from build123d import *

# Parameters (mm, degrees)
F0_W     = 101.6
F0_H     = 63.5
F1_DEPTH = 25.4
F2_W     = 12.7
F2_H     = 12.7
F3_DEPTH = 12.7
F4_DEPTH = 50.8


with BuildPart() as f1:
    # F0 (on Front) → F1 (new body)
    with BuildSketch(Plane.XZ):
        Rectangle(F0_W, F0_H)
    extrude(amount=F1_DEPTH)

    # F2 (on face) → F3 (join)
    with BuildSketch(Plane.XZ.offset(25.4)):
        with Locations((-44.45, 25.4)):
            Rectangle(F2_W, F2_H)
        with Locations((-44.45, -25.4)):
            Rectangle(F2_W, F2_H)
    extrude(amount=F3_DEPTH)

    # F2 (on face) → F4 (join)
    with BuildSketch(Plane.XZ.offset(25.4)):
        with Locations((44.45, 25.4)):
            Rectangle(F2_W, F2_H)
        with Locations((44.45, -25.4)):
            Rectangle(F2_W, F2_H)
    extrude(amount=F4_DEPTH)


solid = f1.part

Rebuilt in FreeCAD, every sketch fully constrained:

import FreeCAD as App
import Part
import Sketcher

V = App.Vector
Q = App.Units.Quantity

doc = App.newDocument("Part")
params = doc.addObject("Spreadsheet::Sheet", "Params")
for row, (alias, value) in enumerate([
    ("sketch1_width", "4 in"),
    ("sketch1_height", "2.5 in"),
    ("pad1_length", "1 in"),
    ("sketch2_width", "0.5 in"),
    ("pad2_length", "0.5 in"),
    ("sketch3_width", "0.5 in"),
    ("pad3_length", "2 in"),
], start=1):
    params.set(f"A{row}", alias)
    params.set(f"B{row}", "=" + value)
    params.setAlias(f"B{row}", alias)

body = doc.addObject("PartDesign::Body", "Body")

# Sketch on XZ plane
sketch1 = body.newObject("Sketcher::SketchObject", "Sketch")
sketch1.AttachmentSupport = (doc.getObject("XZ_Plane"), [""])
sketch1.MapMode = "FlatFace"
sketch1.addGeometry([
    Part.LineSegment(V(-51, 32, 0), V(-51, -32, 0)),
    Part.LineSegment(V(-51, -32, 0), V(51, -32, 0)),
    Part.LineSegment(V(51, -32, 0), V(51, 32, 0)),
    Part.LineSegment(V(51, 32, 0), V(-51, 32, 0)),
], False)
sketch1.addConstraint([
    Sketcher.Constraint("Coincident", 0, 2, 1, 1),
    Sketcher.Constraint("Coincident", 1, 2, 2, 1),
    Sketcher.Constraint("Coincident", 2, 2, 3, 1),
    Sketcher.Constraint("Coincident", 3, 2, 0, 1),
    Sketcher.Constraint("Vertical", 0),
    Sketcher.Constraint("Horizontal", 1),
    Sketcher.Constraint("Vertical", 2),
    Sketcher.Constraint("Horizontal", 3),
    Sketcher.Constraint("Symmetric", 0, 2, 2, 2, -1, 1),
    Sketcher.Constraint("DistanceX", 1, 1, 1, 2, Q("4 in")),
    Sketcher.Constraint("DistanceY", 0, 2, 0, 1, Q("2.5 in")),
])
sketch1.setExpression("Constraints[9]", "Params.sketch1_width")
sketch1.setExpression("Constraints[10]", "Params.sketch1_height")
pad1 = body.newObject("PartDesign::Pad", "Pad")
pad1.Profile = sketch1
pad1.setExpression("Length", "Params.pad1_length")

# Sketch on XZ plane
sketch2 = body.newObject("Sketcher::SketchObject", "Sketch001")
sketch2.AttachmentSupport = (doc.getObject("XZ_Plane"), [""])
sketch2.MapMode = "FlatFace"
sketch2.AttachmentOffset = App.Placement(V(0, 0, 1 * 25.4), App.Rotation())
sketch2.addGeometry([
    Part.LineSegment(V(-51, 32, 0), V(-51, 19, 0)),  # 0
    Part.LineSegment(V(-51, 19, 0), V(-38, 19, 0)),  # 1
    Part.LineSegment(V(-38, 19, 0), V(-38, 32, 0)),  # 2
    Part.LineSegment(V(-38, 32, 0), V(-51, 32, 0)),  # 3
    Part.LineSegment(V(-51, -19, 0), V(-51, -32, 0)),  # 4
    Part.LineSegment(V(-51, -32, 0), V(-38, -32, 0)),  # 5
    Part.LineSegment(V(-38, -32, 0), V(-38, -19, 0)),  # 6
    Part.LineSegment(V(-38, -19, 0), V(-51, -19, 0)),  # 7
], False)
sketch2.addConstraint([
    Sketcher.Constraint("Coincident", 0, 2, 1, 1),
    Sketcher.Constraint("Coincident", 1, 2, 2, 1),
    Sketcher.Constraint("Coincident", 2, 2, 3, 1),
    Sketcher.Constraint("Coincident", 3, 2, 0, 1),
    Sketcher.Constraint("Coincident", 4, 2, 5, 1),
    Sketcher.Constraint("Coincident", 5, 2, 6, 1),
    Sketcher.Constraint("Coincident", 6, 2, 7, 1),
    Sketcher.Constraint("Coincident", 7, 2, 4, 1),
    Sketcher.Constraint("Vertical", 0),
    Sketcher.Constraint("Horizontal", 1),
    Sketcher.Constraint("Vertical", 2),
    Sketcher.Constraint("Horizontal", 3),
    Sketcher.Constraint("Vertical", 4),
    Sketcher.Constraint("Horizontal", 5),
    Sketcher.Constraint("Vertical", 6),
    Sketcher.Constraint("Horizontal", 7),
    Sketcher.Constraint("Symmetric", 3, 2, 4, 2, -1),
    Sketcher.Constraint("Symmetric", 1, 2, 6, 2, -1),
    Sketcher.Constraint("Equal", 7, 0),
    Sketcher.Constraint("DistanceX", 1, 1, 1, 2, Q("0.5 in")),
    Sketcher.Constraint("DistanceX", 0, 2, -1, 1, Q("2 in")),
    Sketcher.Constraint("DistanceY", 4, 2, 0, 2, Q("2 in")),
])
sketch2.setExpression("Constraints[19]", "Params.sketch2_width")
pad2 = body.newObject("PartDesign::Pad", "Pad001")
pad2.Profile = sketch2
pad2.setExpression("Length", "Params.pad2_length")

# Sketch on XZ plane
sketch3 = body.newObject("Sketcher::SketchObject", "Sketch002")
sketch3.AttachmentSupport = (doc.getObject("XZ_Plane"), [""])
sketch3.MapMode = "FlatFace"
sketch3.AttachmentOffset = App.Placement(V(0, 0, 1 * 25.4), App.Rotation())
sketch3.addGeometry([
    Part.LineSegment(V(38, 32, 0), V(38, 19, 0)),  # 0
    Part.LineSegment(V(38, 19, 0), V(51, 19, 0)),  # 1
    Part.LineSegment(V(51, 19, 0), V(51, 32, 0)),  # 2
    Part.LineSegment(V(51, 32, 0), V(38, 32, 0)),  # 3
    Part.LineSegment(V(38, -19, 0), V(38, -32, 0)),  # 4
    Part.LineSegment(V(38, -32, 0), V(51, -32, 0)),  # 5
    Part.LineSegment(V(51, -32, 0), V(51, -19, 0)),  # 6
    Part.LineSegment(V(51, -19, 0), V(38, -19, 0)),  # 7
], False)
sketch3.addConstraint([
    Sketcher.Constraint("Coincident", 0, 2, 1, 1),
    Sketcher.Constraint("Coincident", 1, 2, 2, 1),
    Sketcher.Constraint("Coincident", 2, 2, 3, 1),
    Sketcher.Constraint("Coincident", 3, 2, 0, 1),
    Sketcher.Constraint("Coincident", 4, 2, 5, 1),
    Sketcher.Constraint("Coincident", 5, 2, 6, 1),
    Sketcher.Constraint("Coincident", 6, 2, 7, 1),
    Sketcher.Constraint("Coincident", 7, 2, 4, 1),
    Sketcher.Constraint("Vertical", 0),
    Sketcher.Constraint("Horizontal", 1),
    Sketcher.Constraint("Vertical", 2),
    Sketcher.Constraint("Horizontal", 3),
    Sketcher.Constraint("Vertical", 4),
    Sketcher.Constraint("Horizontal", 5),
    Sketcher.Constraint("Vertical", 6),
    Sketcher.Constraint("Horizontal", 7),
    Sketcher.Constraint("Symmetric", 3, 2, 4, 2, -1),
    Sketcher.Constraint("Symmetric", 1, 2, 6, 2, -1),
    Sketcher.Constraint("Equal", 7, 0),
    Sketcher.Constraint("DistanceX", 1, 1, 1, 2, Q("0.5 in")),
    Sketcher.Constraint("DistanceX", -1, 1, 1, 2, Q("2 in")),
    Sketcher.Constraint("DistanceY", 4, 2, 0, 2, Q("2 in")),
])
sketch3.setExpression("Constraints[19]", "Params.sketch3_width")
pad3 = body.newObject("PartDesign::Pad", "Pad002")
pad3.Profile = sketch3
pad3.setExpression("Length", "Params.pad3_length")

doc.recompute()
